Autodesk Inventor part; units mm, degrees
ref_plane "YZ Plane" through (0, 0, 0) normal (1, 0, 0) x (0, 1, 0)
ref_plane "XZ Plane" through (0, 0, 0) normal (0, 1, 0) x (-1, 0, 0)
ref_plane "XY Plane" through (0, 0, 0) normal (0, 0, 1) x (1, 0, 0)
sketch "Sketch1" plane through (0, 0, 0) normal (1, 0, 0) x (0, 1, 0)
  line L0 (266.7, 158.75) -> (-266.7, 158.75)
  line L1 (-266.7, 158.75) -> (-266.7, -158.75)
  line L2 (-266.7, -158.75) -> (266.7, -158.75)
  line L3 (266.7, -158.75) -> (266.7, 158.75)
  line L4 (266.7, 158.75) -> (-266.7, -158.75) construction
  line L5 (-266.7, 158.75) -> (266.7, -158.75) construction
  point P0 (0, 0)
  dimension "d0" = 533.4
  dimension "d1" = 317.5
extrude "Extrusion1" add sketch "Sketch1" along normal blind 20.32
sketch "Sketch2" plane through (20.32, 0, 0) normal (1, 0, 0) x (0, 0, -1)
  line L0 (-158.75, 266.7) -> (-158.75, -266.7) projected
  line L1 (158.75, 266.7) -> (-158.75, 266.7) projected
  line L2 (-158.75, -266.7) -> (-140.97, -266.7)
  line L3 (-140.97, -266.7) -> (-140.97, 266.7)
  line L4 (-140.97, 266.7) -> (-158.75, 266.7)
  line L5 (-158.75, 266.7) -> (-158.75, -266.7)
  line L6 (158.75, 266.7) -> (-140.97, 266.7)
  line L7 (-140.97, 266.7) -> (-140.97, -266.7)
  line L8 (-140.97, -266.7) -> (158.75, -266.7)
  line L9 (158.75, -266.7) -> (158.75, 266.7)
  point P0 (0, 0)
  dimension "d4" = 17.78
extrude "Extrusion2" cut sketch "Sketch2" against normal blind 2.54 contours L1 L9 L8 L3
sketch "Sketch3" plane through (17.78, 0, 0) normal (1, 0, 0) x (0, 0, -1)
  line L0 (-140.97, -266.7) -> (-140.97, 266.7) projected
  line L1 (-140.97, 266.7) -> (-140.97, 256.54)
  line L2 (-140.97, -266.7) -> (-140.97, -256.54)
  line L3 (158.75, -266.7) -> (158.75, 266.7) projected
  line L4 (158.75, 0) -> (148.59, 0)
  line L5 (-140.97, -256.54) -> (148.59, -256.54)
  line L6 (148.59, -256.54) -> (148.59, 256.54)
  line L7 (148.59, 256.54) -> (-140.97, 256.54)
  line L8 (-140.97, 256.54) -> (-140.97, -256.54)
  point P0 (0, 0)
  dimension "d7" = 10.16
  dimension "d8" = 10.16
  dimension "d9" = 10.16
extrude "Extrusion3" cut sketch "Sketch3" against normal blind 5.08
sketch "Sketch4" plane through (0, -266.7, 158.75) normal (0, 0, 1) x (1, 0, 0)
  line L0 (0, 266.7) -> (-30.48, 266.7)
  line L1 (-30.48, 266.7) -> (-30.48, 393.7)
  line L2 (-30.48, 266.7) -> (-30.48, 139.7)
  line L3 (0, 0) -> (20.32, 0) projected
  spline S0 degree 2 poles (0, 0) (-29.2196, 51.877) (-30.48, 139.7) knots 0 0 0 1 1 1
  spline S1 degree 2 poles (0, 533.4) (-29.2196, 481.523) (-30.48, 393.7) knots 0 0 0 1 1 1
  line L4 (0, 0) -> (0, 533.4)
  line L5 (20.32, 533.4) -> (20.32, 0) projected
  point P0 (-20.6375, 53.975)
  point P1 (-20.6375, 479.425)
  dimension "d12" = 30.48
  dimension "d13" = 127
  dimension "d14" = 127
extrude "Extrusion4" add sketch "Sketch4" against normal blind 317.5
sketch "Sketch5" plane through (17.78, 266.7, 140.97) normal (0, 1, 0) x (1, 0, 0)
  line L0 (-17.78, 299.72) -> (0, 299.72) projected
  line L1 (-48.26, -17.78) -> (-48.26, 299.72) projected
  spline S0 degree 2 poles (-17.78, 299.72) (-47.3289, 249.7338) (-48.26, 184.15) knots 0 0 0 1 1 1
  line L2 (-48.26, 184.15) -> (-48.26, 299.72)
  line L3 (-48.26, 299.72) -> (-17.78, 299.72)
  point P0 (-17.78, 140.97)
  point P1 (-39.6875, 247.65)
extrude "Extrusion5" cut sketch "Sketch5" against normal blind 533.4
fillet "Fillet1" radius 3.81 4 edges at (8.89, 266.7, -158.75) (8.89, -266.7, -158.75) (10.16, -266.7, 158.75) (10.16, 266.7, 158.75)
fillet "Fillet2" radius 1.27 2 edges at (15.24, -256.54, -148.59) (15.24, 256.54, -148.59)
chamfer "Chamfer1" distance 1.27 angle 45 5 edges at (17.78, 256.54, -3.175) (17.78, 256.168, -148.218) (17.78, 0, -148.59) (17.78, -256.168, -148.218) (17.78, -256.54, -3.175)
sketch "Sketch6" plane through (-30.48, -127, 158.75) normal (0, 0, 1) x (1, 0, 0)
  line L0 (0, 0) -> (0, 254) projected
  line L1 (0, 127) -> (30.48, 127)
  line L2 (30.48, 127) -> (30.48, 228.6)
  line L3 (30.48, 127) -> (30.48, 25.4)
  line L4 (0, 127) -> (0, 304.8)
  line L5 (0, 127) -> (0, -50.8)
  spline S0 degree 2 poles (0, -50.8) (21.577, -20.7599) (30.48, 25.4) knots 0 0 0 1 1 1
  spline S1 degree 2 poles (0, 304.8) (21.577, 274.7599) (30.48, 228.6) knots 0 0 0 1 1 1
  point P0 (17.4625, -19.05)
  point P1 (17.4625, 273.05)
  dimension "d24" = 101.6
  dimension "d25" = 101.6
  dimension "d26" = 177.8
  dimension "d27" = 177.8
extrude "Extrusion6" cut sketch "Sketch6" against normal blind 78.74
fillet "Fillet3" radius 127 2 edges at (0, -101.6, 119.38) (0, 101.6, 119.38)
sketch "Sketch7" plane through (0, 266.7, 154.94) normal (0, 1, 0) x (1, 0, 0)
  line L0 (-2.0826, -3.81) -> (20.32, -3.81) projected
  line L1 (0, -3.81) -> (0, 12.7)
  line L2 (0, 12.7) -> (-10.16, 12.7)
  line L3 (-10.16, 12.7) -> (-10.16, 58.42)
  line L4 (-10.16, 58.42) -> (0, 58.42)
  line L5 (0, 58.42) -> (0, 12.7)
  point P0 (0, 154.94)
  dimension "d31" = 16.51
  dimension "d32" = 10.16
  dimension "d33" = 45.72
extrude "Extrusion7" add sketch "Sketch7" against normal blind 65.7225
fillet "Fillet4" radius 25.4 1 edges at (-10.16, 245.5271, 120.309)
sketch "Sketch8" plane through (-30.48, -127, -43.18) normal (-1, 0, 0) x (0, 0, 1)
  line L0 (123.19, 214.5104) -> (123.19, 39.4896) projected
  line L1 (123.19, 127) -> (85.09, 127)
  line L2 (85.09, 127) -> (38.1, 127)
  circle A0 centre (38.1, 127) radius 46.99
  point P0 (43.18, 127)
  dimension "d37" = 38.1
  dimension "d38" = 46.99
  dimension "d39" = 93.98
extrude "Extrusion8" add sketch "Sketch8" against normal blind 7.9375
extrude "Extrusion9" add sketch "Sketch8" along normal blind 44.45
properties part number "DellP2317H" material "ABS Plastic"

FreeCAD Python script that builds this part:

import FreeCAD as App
import Part
import Sketcher
Q = App.Units.Quantity


def edges_at(feature, points):
    """Names of the edges that pass closest to the given points."""
    edges = feature.Shape.Edges
    near = lambda p: min(range(len(edges)), key=lambda i: edges[i].distToShape(Part.Vertex(*p))[0])
    return sorted({f"Edge{near(p) + 1}" for p in points})

doc = App.newDocument("Part")
params = doc.addObject("Spreadsheet::Sheet", "Params")
for row, (alias, value) in enumerate([
    ("sketch1_width", "21 in"),
    ("sketch1_height", "12.5 in"),
    ("pad1_length", "0.8 in"),
    ("sketch2_width", "21 in"),
    ("sketch2_height", "11.8 in"),
    ("pocket1_length", "0.1 in"),
    ("sketch3_width", "20.2 in"),
    ("sketch3_height", "11.4 in"),
    ("pocket2_length", "0.2 in"),
    ("pad2_length", "12.5 in"),
    ("pocket3_length", "21 in"),
    ("fillet_radius", "0.15 in"),
    ("fillet2_radius", "0.05 in"),
    ("chamfer_size", "0.05 in"),
    ("pocket4_length", "3.1 in"),
    ("fillet3_radius", "5 in"),
    ("sketch7_width", "0.4 in"),
    ("sketch7_height", "1.8 in"),
    ("pad3_length", "2.5875 in"),
    ("fillet4_radius", "1 in"),
    ("sketch8_diameter", "3.7 in"),
    ("pad4_length", "0.3125 in"),
    ("sketch9_diameter", "3.7 in"),
    ("pad5_length", "1.75 in"),
], start=1):
    params.set(f"A{row}", alias)
    params.set(f"B{row}", "=" + value)
    params.setAlias(f"B{row}", alias)

body = doc.addObject("PartDesign::Body", "Body")

sketch1 = body.newObject("Sketcher::SketchObject", "Sketch")
sketch1.AttachmentSupport = (doc.getObject("YZ_Plane"), [""])
sketch1.MapMode = "FlatFace"
sketch1.addGeometry([
    Part.LineSegment(App.Vector(267, -159, 0), App.Vector(267, 159, 0)),
    Part.LineSegment(App.Vector(267, 159, 0), App.Vector(-267, 159, 0)),
    Part.LineSegment(App.Vector(-267, 159, 0), App.Vector(-267, -159, 0)),
    Part.LineSegment(App.Vector(-267, -159, 0), App.Vector(267, -159, 0)),
], False)
sketch1.addConstraint([
    Sketcher.Constraint("Coincident", 0, 2, 1, 1),
    Sketcher.Constraint("Coincident", 1, 2, 2, 1),
    Sketcher.Constraint("Coincident", 2, 2, 3, 1),
    Sketcher.Constraint("Coincident", 3, 2, 0, 1),
    Sketcher.Constraint("Vertical", 0),
    Sketcher.Constraint("Horizontal", 1),
    Sketcher.Constraint("Vertical", 2),
    Sketcher.Constraint("Horizontal", 3),
    Sketcher.Constraint("Symmetric", 0, 2, 2, 2, -1, 1),
    Sketcher.Constraint("DistanceX", 1, 2, 1, 1, Q("21 in")),
    Sketcher.Constraint("DistanceY", 0, 1, 0, 2, Q("12.5 in")),
])
sketch1.setExpression("Constraints[9]", "Params.sketch1_width")
sketch1.setExpression("Constraints[10]", "Params.sketch1_height")
pad1 = body.newObject("PartDesign::Pad", "Pad")
pad1.Profile = sketch1
pad1.setExpression("Length", "Params.pad1_length")

sketch2 = body.newObject("Sketcher::SketchObject", "Sketch001")
sketch2.AttachmentSupport = (doc.getObject("YZ_Plane"), [""])
sketch2.MapMode = "FlatFace"
sketch2.AttachmentOffset = App.Placement(App.Vector(0, 0, 0.8 * 25.4), App.Rotation())
sketch2.addGeometry([
    Part.LineSegment(App.Vector(267, -159, 0), App.Vector(267, 141, 0)),
    Part.LineSegment(App.Vector(267, 141, 0), App.Vector(-267, 141, 0)),
    Part.LineSegment(App.Vector(-267, 141, 0), App.Vector(-267, -159, 0)),
    Part.LineSegment(App.Vector(-267, -159, 0), App.Vector(267, -159, 0)),
], False)
sketch2.addConstraint([
    Sketcher.Constraint("Coincident", 0, 2, 1, 1),
    Sketcher.Constraint("Coincident", 1, 2, 2, 1),
    Sketcher.Constraint("Coincident", 2, 2, 3, 1),
    Sketcher.Constraint("Coincident", 3, 2, 0, 1),
    Sketcher.Constraint("Vertical", 0),
    Sketcher.Constraint("Horizontal", 1),
    Sketcher.Constraint("Vertical", 2),
    Sketcher.Constraint("Horizontal", 3),
    Sketcher.Constraint("DistanceX", 1, 2, 1, 1, Q("21 in")),
    Sketcher.Constraint("DistanceY", 0, 1, 0, 2, Q("11.8 in")),
    Sketcher.Constraint("DistanceX", -1, 1, 0, 2, Q("10.5 in")),
    Sketcher.Constraint("DistanceY", -1, 1, 0, 2, Q("5.55 in")),
])
sketch2.setExpression("Constraints[8]", "Params.sketch2_width")
sketch2.setExpression("Constraints[9]", "Params.sketch2_height")
pocket1 = body.newObject("PartDesign::Pocket", "Pocket")
pocket1.Profile = sketch2
pocket1.setExpression("Length", "Params.pocket1_length")

sketch3 = body.newObject("Sketcher::SketchObject", "Sketch002")
sketch3.AttachmentSupport = (doc.getObject("YZ_Plane"), [""])
sketch3.MapMode = "FlatFace"
sketch3.AttachmentOffset = App.Placement(App.Vector(0, 0, 0.7 * 25.4), App.Rotation())
sketch3.addGeometry([
    Part.LineSegment(App.Vector(257, 141, 0), App.Vector(-257, 141, 0)),
    Part.LineSegment(App.Vector(-257, 141, 0), App.Vector(-257, -149, 0)),
    Part.LineSegment(App.Vector(-257, -149, 0), App.Vector(257, -149, 0)),
    Part.LineSegment(App.Vector(257, -149, 0), App.Vector(257, 141, 0)),
], False)
sketch3.addConstraint([
    Sketcher.Constraint("Coincident", 0, 2, 1, 1),
    Sketcher.Constraint("Coincident", 1, 2, 2, 1),
    Sketcher.Constraint("Coincident", 2, 2, 3, 1),
    Sketcher.Constraint("Coincident", 3, 2, 0, 1),
    Sketcher.Constraint("Horizontal", 0),
    Sketcher.Constraint("Vertical", 1),
    Sketcher.Constraint("Horizontal", 2),
    Sketcher.Constraint("Vertical", 3),
    Sketcher.Constraint("DistanceX", 0, 2, 0, 1, Q("20.2 in")),
    Sketcher.Constraint("DistanceY", 1, 2, 1, 1, Q("11.4 in")),
    Sketcher.Constraint("DistanceX", 0, 2, -1, 1, Q("10.1 in")),
    Sketcher.Constraint("DistanceY", -1, 1, 0, 2, Q("5.55 in")),
])
sketch3.setExpression("Constraints[8]", "Params.sketch3_width")
sketch3.setExpression("Constraints[9]", "Params.sketch3_height")
pocket2 = body.newObject("PartDesign::Pocket", "Pocket001")
pocket2.Profile = sketch3
pocket2.setExpression("Length", "Params.pocket2_length")

sketch4 = body.newObject("Sketcher::SketchObject", "Sketch003")
sketch4.AttachmentSupport = (doc.getObject("XY_Plane"), [""])
sketch4.MapMode = "FlatFace"
sketch4.AttachmentOffset = App.Placement(App.Vector(0, 0, 6.25 * 25.4), App.Rotation())
sketch4.addGeometry([
    Part.LineSegment(App.Vector(0, -266.7, 0), App.Vector(0, 266.7, 0)),
    Part.BSplineCurve([App.Vector(0, 266.7, 0), App.Vector(-29.2196, 214.823, 0), App.Vector(-30.48, 127, 0)], [3, 3], [0, 1], False, 2, [1, 1, 1], False),
    Part.LineSegment(App.Vector(-30.48, 127, 0), App.Vector(-30.48, -127, 0)),
    Part.BSplineCurve([App.Vector(0, -266.7, 0), App.Vector(-29.2196, -214.823, 0), App.Vector(-30.48, -127, 0)], [3, 3], [0, 1], False, 2, [1, 1, 1], False),
], False)
sketch4.addConstraint([
    Sketcher.Constraint("Block", 1),
    Sketcher.Constraint("Block", 3),
    Sketcher.Constraint("Coincident", 0, 2, 1, 1),
    Sketcher.Constraint("Coincident", 1, 2, 2, 1),
    Sketcher.Constraint("Coincident", 2, 2, 3, 2),
    Sketcher.Constraint("Coincident", 3, 1, 0, 1),
])
pad2 = body.newObject("PartDesign::Pad", "Pad001")
pad2.Profile = sketch4
pad2.setExpression("Length", "Params.pad2_length")
pad2.Reversed = True

sketch5 = body.newObject("Sketcher::SketchObject", "Sketch004")
sketch5.AttachmentSupport = (doc.getObject("XZ_Plane"), [""])
sketch5.MapMode = "FlatFace"
sketch5.AttachmentOffset = App.Placement(App.Vector(0, 0, -10.5 * 25.4), App.Rotation())
sketch5.addGeometry([
    Part.LineSegment(App.Vector(-30.48, -158.75, 0), App.Vector(-30.48, -43.18, 0)),
    Part.BSplineCurve([App.Vector(0, -158.75, 0), App.Vector(-29.5489, -108.7638, 0), App.Vector(-30.48, -43.18, 0)], [3, 3], [0, 1], False, 2, [1, 1, 1], False),
    Part.LineSegment(App.Vector(0, -158.75, 0), App.Vector(-30.48, -158.75, 0)),
], False)
sketch5.addConstraint([
    Sketcher.Constraint("Block", 1),
    Sketcher.Constraint("Coincident", 0, 2, 1, 2),
    Sketcher.Constraint("Coincident", 1, 1, 2, 1),
    Sketcher.Constraint("Coincident", 2, 2, 0, 1),
    Sketcher.Constraint("Vertical", 0),
    Sketcher.Constraint("Horizontal", 2),
])
pocket3 = body.newObject("PartDesign::Pocket", "Pocket002")
pocket3.Profile = sketch5
pocket3.setExpression("Length", "Params.pocket3_length")
pocket3.Reversed = True
doc.recompute()

fillet = body.newObject("PartDesign::Fillet", "Fillet")
fillet.Base = (pocket3, edges_at(pocket3, [
    (8.89, 266.7, -158.75),
    (8.89, -266.7, -158.75),
    (10.16, -266.7, 158.75),
    (10.16, 266.7, 158.75),
]))
fillet.setExpression("Radius", "Params.fillet_radius")
doc.recompute()

fillet2 = body.newObject("PartDesign::Fillet", "Fillet001")
fillet2.Base = (fillet, edges_at(fillet, [(15.24, -256.54, -148.59), (15.24, 256.54, -148.59)]))
fillet2.setExpression("Radius", "Params.fillet2_radius")
doc.recompute()

chamfer = body.newObject("PartDesign::Chamfer", "Chamfer")
chamfer.Base = (fillet2, edges_at(fillet2, [
    (17.78, 256.54, -3.175),
    (17.78, 256.168, -148.218),
    (17.78, 0, -148.59),
    (17.78, -256.168, -148.218),
    (17.78, -256.54, -3.175),
]))
chamfer.setExpression("Size", "Params.chamfer_size")

sketch6 = body.newObject("Sketcher::SketchObject", "Sketch005")
sketch6.AttachmentSupport = (doc.getObject("XY_Plane"), [""])
sketch6.MapMode = "FlatFace"
sketch6.AttachmentOffset = App.Placement(App.Vector(0, 0, 6.25 * 25.4), App.Rotation())
sketch6.addGeometry([
    Part.BSplineCurve([App.Vector(-30.48, -177.8, 0), App.Vector(-8.903, -147.7599, 0), App.Vector(0, -101.6, 0)], [3, 3], [0, 1], False, 2, [1, 1, 1], False),
    Part.LineSegment(App.Vector(0, -101.6, 0), App.Vector(0, 101.6, 0)),
    Part.BSplineCurve([App.Vector(-30.48, 177.8, 0), App.Vector(-8.903, 147.7599, 0), App.Vector(0, 101.6, 0)], [3, 3], [0, 1], False, 2, [1, 1, 1], False),
    Part.LineSegment(App.Vector(-30.48, 177.8, 0), App.Vector(-30.48, -177.8, 0)),
], False)
sketch6.addConstraint([
    Sketcher.Constraint("Block", 0),
    Sketcher.Constraint("Block", 2),
    Sketcher.Constraint("Coincident", 0, 2, 1, 1),
    Sketcher.Constraint("Coincident", 1, 2, 2, 2),
    Sketcher.Constraint("Coincident", 2, 1, 3, 1),
    Sketcher.Constraint("Coincident", 3, 2, 0, 1),
])
pocket4 = body.newObject("PartDesign::Pocket", "Pocket003")
pocket4.Profile = sketch6
pocket4.setExpression("Length", "Params.pocket4_length")
doc.recompute()

fillet3 = body.newObject("PartDesign::Fillet", "Fillet002")
fillet3.Base = (pocket4, edges_at(pocket4, [(0, -101.6, 119.38), (0, 101.6, 119.38)]))
fillet3.setExpression("Radius", "Params.fillet3_radius")

sketch7 = body.newObject("Sketcher::SketchObject", "Sketch006")
sketch7.AttachmentSupport = (doc.getObject("XZ_Plane"), [""])
sketch7.MapMode = "FlatFace"
sketch7.AttachmentOffset = App.Placement(App.Vector(0, 0, -10.5 * 25.4), App.Rotation())
sketch7.addGeometry([
    Part.LineSegment(App.Vector(-10, 142, 0), App.Vector(0, 142, 0)),
    Part.LineSegment(App.Vector(0, 142, 0), App.Vector(0, 97, 0)),
    Part.LineSegment(App.Vector(0, 97, 0), App.Vector(-10, 97, 0)),
    Part.LineSegment(App.Vector(-10, 97, 0), App.Vector(-10, 142, 0)),
], False)
sketch7.addConstraint([
    Sketcher.Constraint("Coincident", 0, 2, 1, 1),
    Sketcher.Constraint("Coincident", 1, 2, 2, 1),
    Sketcher.Constraint("Coincident", 2, 2, 3, 1),
    Sketcher.Constraint("Coincident", 3, 2, 0, 1),
    Sketcher.Constraint("Horizontal", 0),
    Sketcher.Constraint("Vertical", 1),
    Sketcher.Constraint("Horizontal", 2),
    Sketcher.Constraint("Vertical", 3),
    Sketcher.Constraint("PointOnObject", 0, 2, -2),
    Sketcher.Constraint("DistanceX", 0, 1, 0, 2, Q("0.4 in")),
    Sketcher.Constraint("DistanceY", 1, 2, 1, 1, Q("1.8 in")),
    Sketcher.Constraint("DistanceY", -1, 1, 0, 2, Q("5.6 in")),
])
sketch7.setExpression("Constraints[9]", "Params.sketch7_width")
sketch7.setExpression("Constraints[10]", "Params.sketch7_height")
pad3 = body.newObject("PartDesign::Pad", "Pad002")
pad3.Profile = sketch7
pad3.setExpression("Length", "Params.pad3_length")
doc.recompute()

fillet4 = body.newObject("PartDesign::Fillet", "Fillet003")
fillet4.Base = (pad3, edges_at(pad3, [(-10.16, 245.527, 120.309)]))
fillet4.setExpression("Radius", "Params.fillet4_radius")

sketch8 = body.newObject("Sketcher::SketchObject", "Sketch007")
sketch8.AttachmentSupport = (doc.getObject("YZ_Plane"), [""])
sketch8.MapMode = "FlatFace"
sketch8.AttachmentOffset = App.Placement(App.Vector(0, 0, -1.2 * 25.4), App.Rotation())
sketch8.addGeometry(Part.Circle(App.Vector(0, -5, 0), App.Vector(0, 0, 1), 47), False)
sketch8.addConstraint([
    Sketcher.Constraint("PointOnObject", 0, 3, -2),
    Sketcher.Constraint("Diameter", 0, Q("3.7 in")),
    Sketcher.Constraint("DistanceY", 0, 3, -1, 1, Q("0.2 in")),
])
sketch8.setExpression("Constraints[1]", "Params.sketch8_diameter")
pad4 = body.newObject("PartDesign::Pad", "Pad003")
pad4.Profile = sketch8
pad4.setExpression("Length", "Params.pad4_length")

sketch9 = body.newObject("Sketcher::SketchObject", "Sketch008")
sketch9.AttachmentSupport = (doc.getObject("YZ_Plane"), [""])
sketch9.MapMode = "FlatFace"
sketch9.AttachmentOffset = App.Placement(App.Vector(0, 0, -1.2 * 25.4), App.Rotation())
sketch9.addGeometry(Part.Circle(App.Vector(0, -5, 0), App.Vector(0, 0, 1), 47), False)
sketch9.addConstraint([
    Sketcher.Constraint("PointOnObject", 0, 3, -2),
    Sketcher.Constraint("Diameter", 0, Q("3.7 in")),
    Sketcher.Constraint("DistanceY", 0, 3, -1, 1, Q("0.2 in")),
])
sketch9.setExpression("Constraints[1]", "Params.sketch9_diameter")
pad5 = body.newObject("PartDesign::Pad", "Pad004")
pad5.Profile = sketch9
pad5.setExpression("Length", "Params.pad5_length")
pad5.Reversed = True

doc.recompute()
